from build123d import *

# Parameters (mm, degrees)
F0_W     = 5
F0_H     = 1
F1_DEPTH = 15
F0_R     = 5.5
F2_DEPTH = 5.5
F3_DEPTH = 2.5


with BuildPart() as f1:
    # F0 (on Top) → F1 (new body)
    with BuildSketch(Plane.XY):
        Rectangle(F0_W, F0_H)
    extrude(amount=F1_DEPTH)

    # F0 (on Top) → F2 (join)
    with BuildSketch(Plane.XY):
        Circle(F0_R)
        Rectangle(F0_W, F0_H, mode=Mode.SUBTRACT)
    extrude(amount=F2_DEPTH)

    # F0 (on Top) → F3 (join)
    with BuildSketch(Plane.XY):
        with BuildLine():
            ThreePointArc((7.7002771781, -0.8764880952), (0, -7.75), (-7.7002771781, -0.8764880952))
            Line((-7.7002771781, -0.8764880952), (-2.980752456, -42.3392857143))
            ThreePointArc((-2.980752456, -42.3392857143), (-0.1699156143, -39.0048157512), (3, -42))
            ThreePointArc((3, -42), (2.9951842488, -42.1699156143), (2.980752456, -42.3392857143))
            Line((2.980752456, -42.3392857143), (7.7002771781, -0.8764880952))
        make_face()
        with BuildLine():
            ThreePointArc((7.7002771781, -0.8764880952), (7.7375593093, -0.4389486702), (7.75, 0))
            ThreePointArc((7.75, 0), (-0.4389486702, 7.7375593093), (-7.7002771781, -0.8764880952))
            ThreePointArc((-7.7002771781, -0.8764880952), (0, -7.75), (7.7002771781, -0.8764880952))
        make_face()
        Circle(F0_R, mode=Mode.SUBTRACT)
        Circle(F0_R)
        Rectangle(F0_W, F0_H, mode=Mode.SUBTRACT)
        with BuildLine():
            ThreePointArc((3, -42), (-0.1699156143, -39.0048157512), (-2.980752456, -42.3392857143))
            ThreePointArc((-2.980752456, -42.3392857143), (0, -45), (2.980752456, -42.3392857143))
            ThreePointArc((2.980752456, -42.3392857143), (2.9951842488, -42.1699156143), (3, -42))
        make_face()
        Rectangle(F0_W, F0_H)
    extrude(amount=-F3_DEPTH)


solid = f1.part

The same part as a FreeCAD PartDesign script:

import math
import FreeCAD as App
import Part
import Sketcher

V = App.Vector
Q = App.Units.Quantity

doc = App.newDocument("Part")
body = doc.addObject("PartDesign::Body", "Body")

sketch1 = doc.addObject("Sketcher::SketchObject", "Sketch")
body.addObject(sketch1)
sketch1.AttachmentSupport = (doc.XY_Plane, [""])
sketch1.MapMode = "FlatFace"
sketch1.addGeometry([
    Part.LineSegment(V(-2.5, 0.5, 0), V(-2.5, -0.5, 0)),
    Part.LineSegment(V(-2.5, -0.5, 0), V(2.5, -0.5, 0)),
    Part.LineSegment(V(2.5, -0.5, 0), V(2.5, 0.5, 0)),
    Part.LineSegment(V(2.5, 0.5, 0), V(-2.5, 0.5, 0)),
], False)
sketch1.addConstraint([
    Sketcher.Constraint("Coincident", 0, 2, 1, 1),
    Sketcher.Constraint("Coincident", 1, 2, 2, 1),
    Sketcher.Constraint("Coincident", 2, 2, 3, 1),
    Sketcher.Constraint("Coincident", 3, 2, 0, 1),
    Sketcher.Constraint("Vertical", 0),
    Sketcher.Constraint("Horizontal", 1),
    Sketcher.Constraint("Vertical", 2),
    Sketcher.Constraint("Horizontal", 3),
    Sketcher.Constraint("Symmetric", 0, 2, 2, 2, -1, 1),
    Sketcher.Constraint("DistanceX", 1, 1, 1, 2, Q("5 mm")),
    Sketcher.Constraint("DistanceY", 0, 2, 0, 1, Q("1 mm")),
])
pad1 = doc.addObject("PartDesign::Pad", "Pad")
body.addObject(pad1)
pad1.Profile = sketch1
pad1.Length = 15

sketch2 = doc.addObject("Sketcher::SketchObject", "Sketch001")
body.addObject(sketch2)
sketch2.AttachmentSupport = (doc.XY_Plane, [""])
sketch2.MapMode = "FlatFace"
sketch2.addGeometry([
    Part.Circle(V(0, 0, 0), V(0, 0, 1), 5.5),
    Part.LineSegment(V(2.5, -0.5, 0), V(-2.5, -0.5, 0)),
    Part.LineSegment(V(-2.5, -0.5, 0), V(-2.5, 0.5, 0)),
    Part.LineSegment(V(-2.5, 0.5, 0), V(2.5, 0.5, 0)),
    Part.LineSegment(V(2.5, 0.5, 0), V(2.5, -0.5, 0)),
], False)
sketch2.addConstraint([
    Sketcher.Constraint("Coincident", 1, 2, 2, 1),
    Sketcher.Constraint("Coincident", 2, 2, 3, 1),
    Sketcher.Constraint("Coincident", 3, 2, 4, 1),
    Sketcher.Constraint("Coincident", 4, 2, 1, 1),
    Sketcher.Constraint("Horizontal", 1),
    Sketcher.Constraint("Vertical", 2),
    Sketcher.Constraint("Horizontal", 3),
    Sketcher.Constraint("Vertical", 4),
    Sketcher.Constraint("Coincident", 0, 3, -1, 1),
    Sketcher.Constraint("Symmetric", 1, 2, 3, 2, -1, 1),
    Sketcher.Constraint("Diameter", 0, Q("11 mm")),
    Sketcher.Constraint("DistanceX", 1, 2, 1, 1, Q("5 mm")),
    Sketcher.Constraint("DistanceY", 2, 1, 2, 2, Q("1 mm")),
])
pad2 = doc.addObject("PartDesign::Pad", "Pad001")
body.addObject(pad2)
pad2.Profile = sketch2
pad2.Length = 5.5

sketch3 = doc.addObject("Sketcher::SketchObject", "Sketch002")
body.addObject(sketch3)
sketch3.AttachmentSupport = (doc.XY_Plane, [""])
sketch3.MapMode = "FlatFace"
sketch3.addGeometry([
    Part.LineSegment(V(-7.7, -0.9, 0), V(-3, -42.3, 0)),
    Part.ArcOfCircle(Part.Circle(V(0, -42, 0), V(0, 0, 1), 3), math.radians(-174), math.radians(-6)),
    Part.LineSegment(V(3, -42.3, 0), V(7.7, -0.9, 0)),
    Part.ArcOfCircle(Part.Circle(V(0, 0, 0), V(0, 0, 1), 7.8), math.radians(-6.49), math.radians(0)),
    Part.ArcOfCircle(Part.Circle(V(0, 0, 0), V(0, 0, 1), 7.8), math.radians(0), math.radians(186)),
], False)
sketch3.addConstraint([
    Sketcher.Constraint("Tangent", 0, 2, 1, 1),
    Sketcher.Constraint("Tangent", 1, 2, 2, 1),
    Sketcher.Constraint("Tangent", 2, 2, 3, 1),
    Sketcher.Constraint("Tangent", 3, 2, 4, 1),
    Sketcher.Constraint("Tangent", 4, 2, 0, 1),
    Sketcher.Constraint("Coincident", 3, 3, -1, 1),
    Sketcher.Constraint("Equal", 3, 4),
    Sketcher.Constraint("PointOnObject", 1, 3, -2),
    Sketcher.Constraint("PointOnObject", 3, 2, -1),
    Sketcher.Constraint("Radius", 1, Q("3 mm")),
    Sketcher.Constraint("Radius", 3, Q("7.75 mm")),
    Sketcher.Constraint("DistanceY", 1, 3, -1, 1, Q("42 mm")),
])
pad3 = doc.addObject("PartDesign::Pad", "Pad002")
body.addObject(pad3)
pad3.Profile = sketch3
pad3.Length = 2.5
pad3.Reversed = True

doc.recompute()
